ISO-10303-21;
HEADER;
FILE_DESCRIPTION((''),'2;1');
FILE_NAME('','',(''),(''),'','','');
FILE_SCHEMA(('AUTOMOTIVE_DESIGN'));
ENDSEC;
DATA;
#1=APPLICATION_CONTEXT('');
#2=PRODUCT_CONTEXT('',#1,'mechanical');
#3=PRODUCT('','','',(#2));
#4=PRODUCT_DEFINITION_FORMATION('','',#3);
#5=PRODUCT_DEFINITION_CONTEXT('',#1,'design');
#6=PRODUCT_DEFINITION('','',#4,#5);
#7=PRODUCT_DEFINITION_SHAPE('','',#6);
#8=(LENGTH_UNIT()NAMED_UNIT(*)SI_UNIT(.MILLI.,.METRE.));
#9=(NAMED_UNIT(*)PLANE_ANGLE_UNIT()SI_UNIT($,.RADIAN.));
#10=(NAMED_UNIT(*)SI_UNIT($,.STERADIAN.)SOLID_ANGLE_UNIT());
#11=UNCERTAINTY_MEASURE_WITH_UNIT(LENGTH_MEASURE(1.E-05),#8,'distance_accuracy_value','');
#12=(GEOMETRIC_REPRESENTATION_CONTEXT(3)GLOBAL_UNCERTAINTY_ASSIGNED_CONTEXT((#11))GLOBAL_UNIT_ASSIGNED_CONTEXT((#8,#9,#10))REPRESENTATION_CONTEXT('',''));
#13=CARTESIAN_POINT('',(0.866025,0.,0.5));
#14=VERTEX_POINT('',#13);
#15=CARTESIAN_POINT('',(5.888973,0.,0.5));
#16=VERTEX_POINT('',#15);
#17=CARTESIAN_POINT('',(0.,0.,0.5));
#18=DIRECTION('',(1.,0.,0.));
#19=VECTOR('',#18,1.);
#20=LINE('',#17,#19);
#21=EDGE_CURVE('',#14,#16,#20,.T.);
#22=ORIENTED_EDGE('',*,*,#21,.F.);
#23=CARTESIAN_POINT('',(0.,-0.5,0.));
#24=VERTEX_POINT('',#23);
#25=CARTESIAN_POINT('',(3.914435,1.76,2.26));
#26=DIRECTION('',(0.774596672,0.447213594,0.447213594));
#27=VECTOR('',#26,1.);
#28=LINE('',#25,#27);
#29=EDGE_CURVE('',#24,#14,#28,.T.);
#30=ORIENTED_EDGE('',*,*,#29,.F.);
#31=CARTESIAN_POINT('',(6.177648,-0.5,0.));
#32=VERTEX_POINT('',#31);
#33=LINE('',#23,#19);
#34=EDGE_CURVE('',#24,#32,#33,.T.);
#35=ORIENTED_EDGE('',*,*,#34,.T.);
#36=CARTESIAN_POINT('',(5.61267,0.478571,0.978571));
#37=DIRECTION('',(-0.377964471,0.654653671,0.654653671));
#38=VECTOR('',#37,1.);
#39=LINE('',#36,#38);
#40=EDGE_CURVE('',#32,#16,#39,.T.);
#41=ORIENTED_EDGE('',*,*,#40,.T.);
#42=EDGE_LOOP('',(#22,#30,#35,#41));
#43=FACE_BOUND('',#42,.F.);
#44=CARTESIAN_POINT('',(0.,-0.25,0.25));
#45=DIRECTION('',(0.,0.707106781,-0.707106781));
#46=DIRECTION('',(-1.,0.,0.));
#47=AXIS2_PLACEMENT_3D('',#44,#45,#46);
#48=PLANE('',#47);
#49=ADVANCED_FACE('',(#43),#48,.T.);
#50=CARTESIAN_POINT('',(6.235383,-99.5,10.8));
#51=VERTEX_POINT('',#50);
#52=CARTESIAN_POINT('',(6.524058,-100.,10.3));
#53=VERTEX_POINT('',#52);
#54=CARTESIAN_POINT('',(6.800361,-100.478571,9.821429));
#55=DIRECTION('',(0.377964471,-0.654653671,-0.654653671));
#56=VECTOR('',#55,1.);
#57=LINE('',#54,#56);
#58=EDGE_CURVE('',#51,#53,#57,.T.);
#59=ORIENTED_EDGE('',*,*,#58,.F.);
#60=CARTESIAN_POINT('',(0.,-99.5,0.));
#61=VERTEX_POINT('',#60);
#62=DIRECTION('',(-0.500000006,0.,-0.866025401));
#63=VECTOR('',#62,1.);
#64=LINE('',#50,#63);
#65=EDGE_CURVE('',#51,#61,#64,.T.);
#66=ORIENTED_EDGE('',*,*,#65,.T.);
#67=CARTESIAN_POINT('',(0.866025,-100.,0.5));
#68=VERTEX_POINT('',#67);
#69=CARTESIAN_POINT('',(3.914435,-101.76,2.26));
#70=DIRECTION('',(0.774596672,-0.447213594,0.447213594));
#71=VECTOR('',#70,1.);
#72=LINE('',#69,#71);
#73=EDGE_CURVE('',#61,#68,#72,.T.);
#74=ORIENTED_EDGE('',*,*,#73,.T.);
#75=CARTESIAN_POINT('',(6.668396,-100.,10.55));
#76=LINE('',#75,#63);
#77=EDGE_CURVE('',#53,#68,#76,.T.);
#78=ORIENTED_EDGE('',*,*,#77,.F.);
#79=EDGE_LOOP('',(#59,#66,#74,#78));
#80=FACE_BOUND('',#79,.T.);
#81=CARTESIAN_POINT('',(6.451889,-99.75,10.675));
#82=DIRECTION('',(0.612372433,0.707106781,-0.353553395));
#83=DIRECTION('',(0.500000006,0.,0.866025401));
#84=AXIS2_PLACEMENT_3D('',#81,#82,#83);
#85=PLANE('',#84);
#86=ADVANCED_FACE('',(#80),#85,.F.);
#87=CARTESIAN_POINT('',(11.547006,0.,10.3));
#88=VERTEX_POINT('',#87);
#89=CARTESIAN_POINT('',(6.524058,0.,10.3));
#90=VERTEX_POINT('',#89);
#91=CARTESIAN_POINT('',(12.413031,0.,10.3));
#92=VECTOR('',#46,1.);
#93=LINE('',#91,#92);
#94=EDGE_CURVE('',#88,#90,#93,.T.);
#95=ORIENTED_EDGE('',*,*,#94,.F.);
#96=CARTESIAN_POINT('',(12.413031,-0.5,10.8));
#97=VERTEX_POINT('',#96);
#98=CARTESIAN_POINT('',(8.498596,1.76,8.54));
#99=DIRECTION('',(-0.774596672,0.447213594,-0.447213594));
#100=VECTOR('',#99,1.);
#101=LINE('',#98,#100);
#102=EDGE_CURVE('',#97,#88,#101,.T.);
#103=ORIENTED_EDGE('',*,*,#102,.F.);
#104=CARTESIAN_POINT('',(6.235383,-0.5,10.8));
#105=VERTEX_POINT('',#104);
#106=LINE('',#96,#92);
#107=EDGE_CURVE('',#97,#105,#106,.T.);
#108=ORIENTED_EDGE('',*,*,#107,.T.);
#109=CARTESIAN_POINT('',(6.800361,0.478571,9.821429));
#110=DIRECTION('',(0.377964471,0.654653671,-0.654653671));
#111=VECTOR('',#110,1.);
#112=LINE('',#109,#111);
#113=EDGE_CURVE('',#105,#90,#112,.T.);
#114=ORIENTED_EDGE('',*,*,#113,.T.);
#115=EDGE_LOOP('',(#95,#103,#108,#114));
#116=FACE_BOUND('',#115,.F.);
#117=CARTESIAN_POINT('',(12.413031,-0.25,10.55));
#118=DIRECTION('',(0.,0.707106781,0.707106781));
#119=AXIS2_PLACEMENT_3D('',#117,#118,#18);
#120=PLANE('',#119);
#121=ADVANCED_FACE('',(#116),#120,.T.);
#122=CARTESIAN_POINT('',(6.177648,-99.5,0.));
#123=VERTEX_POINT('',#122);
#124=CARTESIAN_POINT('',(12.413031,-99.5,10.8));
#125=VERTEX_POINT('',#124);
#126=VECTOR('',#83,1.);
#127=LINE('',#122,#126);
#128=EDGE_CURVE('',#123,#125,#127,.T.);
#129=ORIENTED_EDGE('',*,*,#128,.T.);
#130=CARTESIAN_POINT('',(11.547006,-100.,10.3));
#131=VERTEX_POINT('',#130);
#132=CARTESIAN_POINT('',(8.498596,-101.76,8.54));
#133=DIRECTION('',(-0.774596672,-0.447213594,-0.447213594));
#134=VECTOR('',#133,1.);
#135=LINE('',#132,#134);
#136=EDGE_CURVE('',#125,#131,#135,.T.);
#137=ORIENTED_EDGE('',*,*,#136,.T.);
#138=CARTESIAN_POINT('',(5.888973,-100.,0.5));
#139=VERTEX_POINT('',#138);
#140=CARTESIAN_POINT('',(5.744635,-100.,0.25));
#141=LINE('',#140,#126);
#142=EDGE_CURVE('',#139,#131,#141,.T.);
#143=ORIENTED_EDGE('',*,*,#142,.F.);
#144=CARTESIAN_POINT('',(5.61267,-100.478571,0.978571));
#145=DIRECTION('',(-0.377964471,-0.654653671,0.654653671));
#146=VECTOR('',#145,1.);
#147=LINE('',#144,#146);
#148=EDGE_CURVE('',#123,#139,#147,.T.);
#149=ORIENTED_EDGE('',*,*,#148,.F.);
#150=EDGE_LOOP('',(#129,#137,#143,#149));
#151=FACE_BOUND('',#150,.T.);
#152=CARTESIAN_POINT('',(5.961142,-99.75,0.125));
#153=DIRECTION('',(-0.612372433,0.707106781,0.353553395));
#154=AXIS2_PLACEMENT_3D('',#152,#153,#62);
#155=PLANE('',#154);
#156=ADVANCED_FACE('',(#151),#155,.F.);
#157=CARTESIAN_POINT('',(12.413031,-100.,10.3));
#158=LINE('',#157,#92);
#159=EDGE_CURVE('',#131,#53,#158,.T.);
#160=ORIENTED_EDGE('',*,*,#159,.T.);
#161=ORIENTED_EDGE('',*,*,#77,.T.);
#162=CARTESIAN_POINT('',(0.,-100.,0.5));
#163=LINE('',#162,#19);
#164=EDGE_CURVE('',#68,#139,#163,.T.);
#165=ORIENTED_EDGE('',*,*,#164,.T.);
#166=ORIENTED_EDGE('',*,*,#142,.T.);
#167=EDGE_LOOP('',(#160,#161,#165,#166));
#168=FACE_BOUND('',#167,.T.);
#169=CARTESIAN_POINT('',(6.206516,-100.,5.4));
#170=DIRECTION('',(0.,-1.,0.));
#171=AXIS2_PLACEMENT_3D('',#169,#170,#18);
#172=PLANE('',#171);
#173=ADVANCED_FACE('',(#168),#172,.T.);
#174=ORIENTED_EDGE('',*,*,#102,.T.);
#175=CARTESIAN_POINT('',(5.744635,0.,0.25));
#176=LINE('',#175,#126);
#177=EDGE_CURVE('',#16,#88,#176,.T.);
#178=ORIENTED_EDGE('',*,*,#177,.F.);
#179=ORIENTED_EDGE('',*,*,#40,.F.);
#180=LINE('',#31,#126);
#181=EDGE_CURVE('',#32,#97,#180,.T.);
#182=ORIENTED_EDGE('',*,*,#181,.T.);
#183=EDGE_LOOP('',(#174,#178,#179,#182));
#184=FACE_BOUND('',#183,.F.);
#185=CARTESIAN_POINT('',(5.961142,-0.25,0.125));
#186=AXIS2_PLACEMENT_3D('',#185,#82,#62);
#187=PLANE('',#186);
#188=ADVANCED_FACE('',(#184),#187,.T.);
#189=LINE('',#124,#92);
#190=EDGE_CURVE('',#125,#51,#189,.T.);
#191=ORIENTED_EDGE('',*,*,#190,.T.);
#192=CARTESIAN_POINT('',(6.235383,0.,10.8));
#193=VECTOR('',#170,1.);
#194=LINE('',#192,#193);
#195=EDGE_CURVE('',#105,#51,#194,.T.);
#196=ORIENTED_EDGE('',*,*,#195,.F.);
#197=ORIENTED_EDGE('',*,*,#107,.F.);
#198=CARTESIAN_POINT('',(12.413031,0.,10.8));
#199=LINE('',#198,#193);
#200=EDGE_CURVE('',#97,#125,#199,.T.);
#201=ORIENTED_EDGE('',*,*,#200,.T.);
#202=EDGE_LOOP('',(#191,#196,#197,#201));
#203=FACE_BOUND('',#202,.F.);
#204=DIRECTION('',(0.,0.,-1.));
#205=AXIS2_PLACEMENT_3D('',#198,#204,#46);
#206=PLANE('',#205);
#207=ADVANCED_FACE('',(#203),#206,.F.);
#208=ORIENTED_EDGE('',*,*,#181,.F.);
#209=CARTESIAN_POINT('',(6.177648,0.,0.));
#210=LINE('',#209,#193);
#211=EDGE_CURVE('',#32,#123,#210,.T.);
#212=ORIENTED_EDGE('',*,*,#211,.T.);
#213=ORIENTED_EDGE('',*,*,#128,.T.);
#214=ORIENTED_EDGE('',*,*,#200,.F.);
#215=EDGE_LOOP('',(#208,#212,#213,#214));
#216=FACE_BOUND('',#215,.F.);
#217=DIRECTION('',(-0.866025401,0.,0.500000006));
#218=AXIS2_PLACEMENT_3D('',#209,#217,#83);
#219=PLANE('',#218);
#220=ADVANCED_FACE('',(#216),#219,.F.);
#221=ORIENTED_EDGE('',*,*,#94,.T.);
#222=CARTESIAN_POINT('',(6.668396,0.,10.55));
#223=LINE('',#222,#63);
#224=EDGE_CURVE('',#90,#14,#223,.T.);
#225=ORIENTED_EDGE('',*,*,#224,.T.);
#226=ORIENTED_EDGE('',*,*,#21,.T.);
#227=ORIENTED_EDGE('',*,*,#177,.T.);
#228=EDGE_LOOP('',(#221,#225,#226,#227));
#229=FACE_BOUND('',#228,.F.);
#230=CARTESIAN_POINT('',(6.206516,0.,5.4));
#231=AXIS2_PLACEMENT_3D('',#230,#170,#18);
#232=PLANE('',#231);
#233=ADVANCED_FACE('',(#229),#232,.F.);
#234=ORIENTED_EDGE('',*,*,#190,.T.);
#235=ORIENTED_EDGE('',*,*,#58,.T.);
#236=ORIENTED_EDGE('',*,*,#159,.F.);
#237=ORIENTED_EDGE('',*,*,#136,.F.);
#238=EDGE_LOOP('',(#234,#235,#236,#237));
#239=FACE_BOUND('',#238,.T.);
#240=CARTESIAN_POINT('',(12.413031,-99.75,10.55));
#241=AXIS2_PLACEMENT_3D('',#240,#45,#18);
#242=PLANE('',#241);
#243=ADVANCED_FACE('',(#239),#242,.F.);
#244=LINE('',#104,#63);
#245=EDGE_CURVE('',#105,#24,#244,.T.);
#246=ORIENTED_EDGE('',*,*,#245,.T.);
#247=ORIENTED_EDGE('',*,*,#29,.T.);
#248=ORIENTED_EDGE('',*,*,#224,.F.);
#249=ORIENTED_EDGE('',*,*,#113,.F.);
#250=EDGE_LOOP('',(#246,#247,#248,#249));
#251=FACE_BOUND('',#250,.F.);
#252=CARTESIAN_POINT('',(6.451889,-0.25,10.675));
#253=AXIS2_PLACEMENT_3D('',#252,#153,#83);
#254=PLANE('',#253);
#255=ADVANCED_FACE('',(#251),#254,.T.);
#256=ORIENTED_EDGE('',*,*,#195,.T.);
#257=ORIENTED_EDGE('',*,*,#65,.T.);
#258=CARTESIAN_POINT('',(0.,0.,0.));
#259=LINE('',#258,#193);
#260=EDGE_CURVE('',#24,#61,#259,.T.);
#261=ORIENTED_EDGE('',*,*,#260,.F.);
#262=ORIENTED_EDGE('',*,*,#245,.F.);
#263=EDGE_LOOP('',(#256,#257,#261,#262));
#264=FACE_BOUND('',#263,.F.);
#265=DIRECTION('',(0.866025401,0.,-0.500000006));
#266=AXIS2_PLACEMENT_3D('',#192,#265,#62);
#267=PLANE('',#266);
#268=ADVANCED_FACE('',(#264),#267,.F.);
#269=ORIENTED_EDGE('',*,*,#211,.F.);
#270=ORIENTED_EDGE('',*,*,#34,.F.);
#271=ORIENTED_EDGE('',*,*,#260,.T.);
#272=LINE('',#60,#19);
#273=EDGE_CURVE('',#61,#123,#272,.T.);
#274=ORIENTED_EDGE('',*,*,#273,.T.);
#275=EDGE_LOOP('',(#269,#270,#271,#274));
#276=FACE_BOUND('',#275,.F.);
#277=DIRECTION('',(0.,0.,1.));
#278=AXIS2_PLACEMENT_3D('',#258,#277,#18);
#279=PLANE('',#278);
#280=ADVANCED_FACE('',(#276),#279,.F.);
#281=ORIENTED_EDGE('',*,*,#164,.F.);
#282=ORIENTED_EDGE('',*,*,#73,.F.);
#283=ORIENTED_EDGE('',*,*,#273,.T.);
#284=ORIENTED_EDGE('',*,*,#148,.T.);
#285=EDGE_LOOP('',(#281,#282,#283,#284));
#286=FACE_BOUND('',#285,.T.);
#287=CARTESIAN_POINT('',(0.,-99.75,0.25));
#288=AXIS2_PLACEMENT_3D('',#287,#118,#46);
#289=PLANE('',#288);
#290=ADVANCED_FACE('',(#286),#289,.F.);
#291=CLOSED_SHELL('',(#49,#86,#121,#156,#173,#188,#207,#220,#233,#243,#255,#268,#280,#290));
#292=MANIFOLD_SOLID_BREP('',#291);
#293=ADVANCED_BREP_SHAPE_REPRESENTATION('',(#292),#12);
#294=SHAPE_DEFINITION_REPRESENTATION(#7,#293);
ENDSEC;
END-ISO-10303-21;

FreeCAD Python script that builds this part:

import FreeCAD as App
import Part
import Sketcher
from FreeCAD import Vector
Q = App.Units.Quantity


def edges_at(feature, points):
    """Names of the edges that pass closest to the given points."""
    edges = feature.Shape.Edges
    near = lambda p: min(range(len(edges)), key=lambda i: edges[i].distToShape(Part.Vertex(*p))[0])
    return sorted({f"Edge{near(p) + 1}" for p in points})

doc = App.newDocument("Part")
body = doc.addObject("PartDesign::Body", "Body")

# Sketch on XZ plane
sketch1 = body.newObject("Sketcher::SketchObject", "Sketch")
sketch1.AttachmentSupport = (doc.getObject("XZ_Plane"), [""])
sketch1.MapMode = "FlatFace"
sketch1.addGeometry(Part.LineSegment(Vector(6, 11, 0), Vector(0, 0, 0)), False)
sketch1.addGeometry(Part.LineSegment(Vector(0, 0, 0), Vector(6, 0, 0)), False)
sketch1.addGeometry(Part.LineSegment(Vector(6, 0, 0), Vector(12, 11, 0)), False)
sketch1.addGeometry(Part.LineSegment(Vector(12, 11, 0), Vector(6, 11, 0)), False)
sketch1.addConstraint(Sketcher.Constraint("Coincident", 0, 2, 1, 1))
sketch1.addConstraint(Sketcher.Constraint("Coincident", 1, 2, 2, 1))
sketch1.addConstraint(Sketcher.Constraint("Coincident", 2, 2, 3, 1))
sketch1.addConstraint(Sketcher.Constraint("Coincident", 3, 2, 0, 1))
sketch1.addConstraint(Sketcher.Constraint("Horizontal", 1))
sketch1.addConstraint(Sketcher.Constraint("Horizontal", 3))
sketch1.addConstraint(Sketcher.Constraint("Coincident", 0, 2, -1, 1))
sketch1.addConstraint(Sketcher.Constraint("Parallel", 0, 2))
sketch1.addConstraint(Sketcher.Constraint("Angle", 0, Q("-120 deg")))
sketch1.addConstraint(Sketcher.Constraint("DistanceY", -1, 1, 2, 2, 10.8))
sketch1.addConstraint(Sketcher.Constraint("DistanceX", 3, 2, 3, 1, 6.177648))
pad1 = body.newObject("PartDesign::Pad", "Pad")
pad1.Profile = sketch1
pad1.Length = 100
doc.recompute()

chamfer = body.newObject("PartDesign::Chamfer", "Chamfer")
chamfer.Base = (pad1, edges_at(pad1, [
    (9.324, -100, 10.8),
    (3.118, -100, 5.4),
    (9.295, -100, 5.4),
    (3.089, -100, 0),
    (9.295, 0, 5.4),
    (3.118, 0, 5.4),
    (3.089, 0, 0),
    (9.324, 0, 10.8),
]))
chamfer.Size = 0.5

doc.recompute()
